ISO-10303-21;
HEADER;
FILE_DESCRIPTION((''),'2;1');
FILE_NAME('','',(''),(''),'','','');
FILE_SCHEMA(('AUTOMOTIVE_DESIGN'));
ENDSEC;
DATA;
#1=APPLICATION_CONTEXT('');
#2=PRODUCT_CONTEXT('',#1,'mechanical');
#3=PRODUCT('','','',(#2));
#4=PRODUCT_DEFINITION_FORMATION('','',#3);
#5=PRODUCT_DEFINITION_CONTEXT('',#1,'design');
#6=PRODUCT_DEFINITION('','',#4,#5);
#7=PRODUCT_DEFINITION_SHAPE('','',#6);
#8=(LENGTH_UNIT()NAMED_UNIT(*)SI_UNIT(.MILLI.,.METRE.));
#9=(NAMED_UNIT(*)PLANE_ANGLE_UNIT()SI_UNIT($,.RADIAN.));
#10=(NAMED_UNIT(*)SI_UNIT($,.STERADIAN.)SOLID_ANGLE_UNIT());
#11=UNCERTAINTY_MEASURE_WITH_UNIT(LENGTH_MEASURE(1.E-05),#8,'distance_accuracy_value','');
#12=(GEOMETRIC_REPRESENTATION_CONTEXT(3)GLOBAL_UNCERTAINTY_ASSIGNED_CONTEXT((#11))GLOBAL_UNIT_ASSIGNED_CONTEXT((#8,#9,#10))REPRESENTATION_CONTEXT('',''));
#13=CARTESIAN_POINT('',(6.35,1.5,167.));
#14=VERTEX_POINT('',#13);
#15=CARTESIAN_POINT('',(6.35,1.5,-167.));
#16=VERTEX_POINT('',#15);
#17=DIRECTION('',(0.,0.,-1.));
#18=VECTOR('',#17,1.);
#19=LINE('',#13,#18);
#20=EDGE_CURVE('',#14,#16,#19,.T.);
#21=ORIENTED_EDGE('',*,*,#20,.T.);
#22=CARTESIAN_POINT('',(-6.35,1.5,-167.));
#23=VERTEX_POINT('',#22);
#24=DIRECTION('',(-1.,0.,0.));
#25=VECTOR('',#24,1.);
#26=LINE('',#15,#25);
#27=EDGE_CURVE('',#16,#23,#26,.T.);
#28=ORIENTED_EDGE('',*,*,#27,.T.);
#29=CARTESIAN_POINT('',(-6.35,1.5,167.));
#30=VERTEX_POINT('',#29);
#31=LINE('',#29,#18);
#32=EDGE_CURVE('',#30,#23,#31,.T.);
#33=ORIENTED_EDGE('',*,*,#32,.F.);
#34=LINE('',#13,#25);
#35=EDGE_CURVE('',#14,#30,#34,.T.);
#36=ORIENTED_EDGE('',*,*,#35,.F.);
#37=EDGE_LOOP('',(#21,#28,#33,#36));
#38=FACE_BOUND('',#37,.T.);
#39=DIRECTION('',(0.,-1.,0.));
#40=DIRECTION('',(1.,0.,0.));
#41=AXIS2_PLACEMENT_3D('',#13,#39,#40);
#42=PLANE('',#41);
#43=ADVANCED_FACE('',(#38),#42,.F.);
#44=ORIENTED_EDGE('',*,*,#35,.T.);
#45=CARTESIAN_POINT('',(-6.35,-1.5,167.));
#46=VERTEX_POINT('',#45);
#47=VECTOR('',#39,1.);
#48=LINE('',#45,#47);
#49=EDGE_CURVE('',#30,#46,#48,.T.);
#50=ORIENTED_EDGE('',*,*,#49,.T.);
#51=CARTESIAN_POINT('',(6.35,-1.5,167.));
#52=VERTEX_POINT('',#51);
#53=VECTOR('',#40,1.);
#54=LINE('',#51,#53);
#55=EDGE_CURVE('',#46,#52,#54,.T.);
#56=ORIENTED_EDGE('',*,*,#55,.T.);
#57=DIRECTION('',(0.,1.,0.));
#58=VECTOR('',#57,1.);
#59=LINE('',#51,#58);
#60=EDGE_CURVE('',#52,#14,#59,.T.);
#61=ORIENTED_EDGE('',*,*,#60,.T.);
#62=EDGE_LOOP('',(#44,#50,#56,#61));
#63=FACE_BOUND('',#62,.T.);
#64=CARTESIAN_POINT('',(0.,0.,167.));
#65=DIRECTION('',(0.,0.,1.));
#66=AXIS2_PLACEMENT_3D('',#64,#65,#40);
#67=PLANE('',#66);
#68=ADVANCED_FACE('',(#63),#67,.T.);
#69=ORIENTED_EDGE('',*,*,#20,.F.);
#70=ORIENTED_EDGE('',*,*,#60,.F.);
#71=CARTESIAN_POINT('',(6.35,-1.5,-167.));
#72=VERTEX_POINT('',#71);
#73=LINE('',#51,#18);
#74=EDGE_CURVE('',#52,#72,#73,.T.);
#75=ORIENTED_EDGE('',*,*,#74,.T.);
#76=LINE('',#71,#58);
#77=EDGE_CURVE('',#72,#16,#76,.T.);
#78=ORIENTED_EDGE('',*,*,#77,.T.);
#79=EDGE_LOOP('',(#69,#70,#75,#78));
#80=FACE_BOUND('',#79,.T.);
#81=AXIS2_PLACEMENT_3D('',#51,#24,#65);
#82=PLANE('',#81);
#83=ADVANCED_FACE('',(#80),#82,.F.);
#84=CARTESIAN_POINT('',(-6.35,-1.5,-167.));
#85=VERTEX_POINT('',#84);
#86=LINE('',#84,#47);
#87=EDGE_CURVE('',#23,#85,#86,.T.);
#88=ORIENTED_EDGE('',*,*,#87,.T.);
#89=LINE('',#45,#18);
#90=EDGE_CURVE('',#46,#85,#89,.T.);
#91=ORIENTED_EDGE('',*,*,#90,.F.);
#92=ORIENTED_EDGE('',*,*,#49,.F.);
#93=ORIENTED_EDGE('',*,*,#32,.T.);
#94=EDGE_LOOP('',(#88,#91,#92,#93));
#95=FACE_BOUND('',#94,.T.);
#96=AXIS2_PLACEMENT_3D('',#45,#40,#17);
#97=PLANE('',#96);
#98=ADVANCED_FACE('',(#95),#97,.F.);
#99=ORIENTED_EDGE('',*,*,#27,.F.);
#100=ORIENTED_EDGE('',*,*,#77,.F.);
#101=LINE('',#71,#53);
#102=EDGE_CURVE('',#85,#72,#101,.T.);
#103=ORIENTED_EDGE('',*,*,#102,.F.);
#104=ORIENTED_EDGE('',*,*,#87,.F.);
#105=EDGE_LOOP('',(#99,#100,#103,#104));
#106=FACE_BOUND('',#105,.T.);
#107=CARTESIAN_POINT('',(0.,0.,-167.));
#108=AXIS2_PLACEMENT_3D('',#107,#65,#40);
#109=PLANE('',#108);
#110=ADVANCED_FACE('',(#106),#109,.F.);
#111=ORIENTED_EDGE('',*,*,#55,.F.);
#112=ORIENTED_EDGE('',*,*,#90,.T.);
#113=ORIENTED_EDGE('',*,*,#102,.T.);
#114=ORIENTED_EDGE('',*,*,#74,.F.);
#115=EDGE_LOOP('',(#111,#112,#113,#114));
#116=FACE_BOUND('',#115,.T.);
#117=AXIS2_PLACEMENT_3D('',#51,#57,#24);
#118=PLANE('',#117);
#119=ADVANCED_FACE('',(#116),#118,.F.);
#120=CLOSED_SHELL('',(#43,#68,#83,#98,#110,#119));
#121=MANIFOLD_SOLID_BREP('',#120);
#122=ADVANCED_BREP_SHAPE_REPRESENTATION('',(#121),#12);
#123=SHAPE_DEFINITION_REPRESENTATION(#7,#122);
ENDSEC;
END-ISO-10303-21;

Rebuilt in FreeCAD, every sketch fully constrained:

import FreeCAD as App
import Part
import Sketcher
Q = App.Units.Quantity


def add_polygon(sketch, points):
    """Adds a closed chain of lines whose ends are joined by coincident constraints."""
    first, n = sketch.GeometryCount, len(points)
    for a, b in zip(points, points[1:] + points[:1]):
        sketch.addGeometry(Part.LineSegment(App.Vector(*a, 0), App.Vector(*b, 0)), False)
    for i in range(n):
        sketch.addConstraint(Sketcher.Constraint("Coincident", first + i, 2, first + (i + 1) % n, 1))

doc = App.newDocument("Part")
body = doc.addObject("PartDesign::Body", "Body")

# Sketch on XY plane
sketch1 = body.newObject("Sketcher::SketchObject", "Sketch")
sketch1.AttachmentSupport = (doc.getObject("XY_Plane"), [""])
sketch1.MapMode = "FlatFace"
add_polygon(sketch1, [(-6.35, 1.5), (-6.35, -1.5), (6.35, -1.5), (6.35, 1.5)])  # lines 0-3
sketch1.addConstraint(Sketcher.Constraint("Vertical", 0))
sketch1.addConstraint(Sketcher.Constraint("Horizontal", 1))
sketch1.addConstraint(Sketcher.Constraint("Vertical", 2))
sketch1.addConstraint(Sketcher.Constraint("Horizontal", 3))
sketch1.addConstraint(Sketcher.Constraint("Symmetric", 0, 2, 2, 2, -1, 1))
sketch1.addConstraint(Sketcher.Constraint("DistanceY", 0, 2, 0, 1, Q("3 mm")))
sketch1.addConstraint(Sketcher.Constraint("DistanceX", 1, 1, 1, 2, Q("12.7 mm")))
pad1 = body.newObject("PartDesign::Pad", "Pad")
pad1.Profile = sketch1
pad1.Length = 334
pad1.Midplane = True

doc.recompute()
